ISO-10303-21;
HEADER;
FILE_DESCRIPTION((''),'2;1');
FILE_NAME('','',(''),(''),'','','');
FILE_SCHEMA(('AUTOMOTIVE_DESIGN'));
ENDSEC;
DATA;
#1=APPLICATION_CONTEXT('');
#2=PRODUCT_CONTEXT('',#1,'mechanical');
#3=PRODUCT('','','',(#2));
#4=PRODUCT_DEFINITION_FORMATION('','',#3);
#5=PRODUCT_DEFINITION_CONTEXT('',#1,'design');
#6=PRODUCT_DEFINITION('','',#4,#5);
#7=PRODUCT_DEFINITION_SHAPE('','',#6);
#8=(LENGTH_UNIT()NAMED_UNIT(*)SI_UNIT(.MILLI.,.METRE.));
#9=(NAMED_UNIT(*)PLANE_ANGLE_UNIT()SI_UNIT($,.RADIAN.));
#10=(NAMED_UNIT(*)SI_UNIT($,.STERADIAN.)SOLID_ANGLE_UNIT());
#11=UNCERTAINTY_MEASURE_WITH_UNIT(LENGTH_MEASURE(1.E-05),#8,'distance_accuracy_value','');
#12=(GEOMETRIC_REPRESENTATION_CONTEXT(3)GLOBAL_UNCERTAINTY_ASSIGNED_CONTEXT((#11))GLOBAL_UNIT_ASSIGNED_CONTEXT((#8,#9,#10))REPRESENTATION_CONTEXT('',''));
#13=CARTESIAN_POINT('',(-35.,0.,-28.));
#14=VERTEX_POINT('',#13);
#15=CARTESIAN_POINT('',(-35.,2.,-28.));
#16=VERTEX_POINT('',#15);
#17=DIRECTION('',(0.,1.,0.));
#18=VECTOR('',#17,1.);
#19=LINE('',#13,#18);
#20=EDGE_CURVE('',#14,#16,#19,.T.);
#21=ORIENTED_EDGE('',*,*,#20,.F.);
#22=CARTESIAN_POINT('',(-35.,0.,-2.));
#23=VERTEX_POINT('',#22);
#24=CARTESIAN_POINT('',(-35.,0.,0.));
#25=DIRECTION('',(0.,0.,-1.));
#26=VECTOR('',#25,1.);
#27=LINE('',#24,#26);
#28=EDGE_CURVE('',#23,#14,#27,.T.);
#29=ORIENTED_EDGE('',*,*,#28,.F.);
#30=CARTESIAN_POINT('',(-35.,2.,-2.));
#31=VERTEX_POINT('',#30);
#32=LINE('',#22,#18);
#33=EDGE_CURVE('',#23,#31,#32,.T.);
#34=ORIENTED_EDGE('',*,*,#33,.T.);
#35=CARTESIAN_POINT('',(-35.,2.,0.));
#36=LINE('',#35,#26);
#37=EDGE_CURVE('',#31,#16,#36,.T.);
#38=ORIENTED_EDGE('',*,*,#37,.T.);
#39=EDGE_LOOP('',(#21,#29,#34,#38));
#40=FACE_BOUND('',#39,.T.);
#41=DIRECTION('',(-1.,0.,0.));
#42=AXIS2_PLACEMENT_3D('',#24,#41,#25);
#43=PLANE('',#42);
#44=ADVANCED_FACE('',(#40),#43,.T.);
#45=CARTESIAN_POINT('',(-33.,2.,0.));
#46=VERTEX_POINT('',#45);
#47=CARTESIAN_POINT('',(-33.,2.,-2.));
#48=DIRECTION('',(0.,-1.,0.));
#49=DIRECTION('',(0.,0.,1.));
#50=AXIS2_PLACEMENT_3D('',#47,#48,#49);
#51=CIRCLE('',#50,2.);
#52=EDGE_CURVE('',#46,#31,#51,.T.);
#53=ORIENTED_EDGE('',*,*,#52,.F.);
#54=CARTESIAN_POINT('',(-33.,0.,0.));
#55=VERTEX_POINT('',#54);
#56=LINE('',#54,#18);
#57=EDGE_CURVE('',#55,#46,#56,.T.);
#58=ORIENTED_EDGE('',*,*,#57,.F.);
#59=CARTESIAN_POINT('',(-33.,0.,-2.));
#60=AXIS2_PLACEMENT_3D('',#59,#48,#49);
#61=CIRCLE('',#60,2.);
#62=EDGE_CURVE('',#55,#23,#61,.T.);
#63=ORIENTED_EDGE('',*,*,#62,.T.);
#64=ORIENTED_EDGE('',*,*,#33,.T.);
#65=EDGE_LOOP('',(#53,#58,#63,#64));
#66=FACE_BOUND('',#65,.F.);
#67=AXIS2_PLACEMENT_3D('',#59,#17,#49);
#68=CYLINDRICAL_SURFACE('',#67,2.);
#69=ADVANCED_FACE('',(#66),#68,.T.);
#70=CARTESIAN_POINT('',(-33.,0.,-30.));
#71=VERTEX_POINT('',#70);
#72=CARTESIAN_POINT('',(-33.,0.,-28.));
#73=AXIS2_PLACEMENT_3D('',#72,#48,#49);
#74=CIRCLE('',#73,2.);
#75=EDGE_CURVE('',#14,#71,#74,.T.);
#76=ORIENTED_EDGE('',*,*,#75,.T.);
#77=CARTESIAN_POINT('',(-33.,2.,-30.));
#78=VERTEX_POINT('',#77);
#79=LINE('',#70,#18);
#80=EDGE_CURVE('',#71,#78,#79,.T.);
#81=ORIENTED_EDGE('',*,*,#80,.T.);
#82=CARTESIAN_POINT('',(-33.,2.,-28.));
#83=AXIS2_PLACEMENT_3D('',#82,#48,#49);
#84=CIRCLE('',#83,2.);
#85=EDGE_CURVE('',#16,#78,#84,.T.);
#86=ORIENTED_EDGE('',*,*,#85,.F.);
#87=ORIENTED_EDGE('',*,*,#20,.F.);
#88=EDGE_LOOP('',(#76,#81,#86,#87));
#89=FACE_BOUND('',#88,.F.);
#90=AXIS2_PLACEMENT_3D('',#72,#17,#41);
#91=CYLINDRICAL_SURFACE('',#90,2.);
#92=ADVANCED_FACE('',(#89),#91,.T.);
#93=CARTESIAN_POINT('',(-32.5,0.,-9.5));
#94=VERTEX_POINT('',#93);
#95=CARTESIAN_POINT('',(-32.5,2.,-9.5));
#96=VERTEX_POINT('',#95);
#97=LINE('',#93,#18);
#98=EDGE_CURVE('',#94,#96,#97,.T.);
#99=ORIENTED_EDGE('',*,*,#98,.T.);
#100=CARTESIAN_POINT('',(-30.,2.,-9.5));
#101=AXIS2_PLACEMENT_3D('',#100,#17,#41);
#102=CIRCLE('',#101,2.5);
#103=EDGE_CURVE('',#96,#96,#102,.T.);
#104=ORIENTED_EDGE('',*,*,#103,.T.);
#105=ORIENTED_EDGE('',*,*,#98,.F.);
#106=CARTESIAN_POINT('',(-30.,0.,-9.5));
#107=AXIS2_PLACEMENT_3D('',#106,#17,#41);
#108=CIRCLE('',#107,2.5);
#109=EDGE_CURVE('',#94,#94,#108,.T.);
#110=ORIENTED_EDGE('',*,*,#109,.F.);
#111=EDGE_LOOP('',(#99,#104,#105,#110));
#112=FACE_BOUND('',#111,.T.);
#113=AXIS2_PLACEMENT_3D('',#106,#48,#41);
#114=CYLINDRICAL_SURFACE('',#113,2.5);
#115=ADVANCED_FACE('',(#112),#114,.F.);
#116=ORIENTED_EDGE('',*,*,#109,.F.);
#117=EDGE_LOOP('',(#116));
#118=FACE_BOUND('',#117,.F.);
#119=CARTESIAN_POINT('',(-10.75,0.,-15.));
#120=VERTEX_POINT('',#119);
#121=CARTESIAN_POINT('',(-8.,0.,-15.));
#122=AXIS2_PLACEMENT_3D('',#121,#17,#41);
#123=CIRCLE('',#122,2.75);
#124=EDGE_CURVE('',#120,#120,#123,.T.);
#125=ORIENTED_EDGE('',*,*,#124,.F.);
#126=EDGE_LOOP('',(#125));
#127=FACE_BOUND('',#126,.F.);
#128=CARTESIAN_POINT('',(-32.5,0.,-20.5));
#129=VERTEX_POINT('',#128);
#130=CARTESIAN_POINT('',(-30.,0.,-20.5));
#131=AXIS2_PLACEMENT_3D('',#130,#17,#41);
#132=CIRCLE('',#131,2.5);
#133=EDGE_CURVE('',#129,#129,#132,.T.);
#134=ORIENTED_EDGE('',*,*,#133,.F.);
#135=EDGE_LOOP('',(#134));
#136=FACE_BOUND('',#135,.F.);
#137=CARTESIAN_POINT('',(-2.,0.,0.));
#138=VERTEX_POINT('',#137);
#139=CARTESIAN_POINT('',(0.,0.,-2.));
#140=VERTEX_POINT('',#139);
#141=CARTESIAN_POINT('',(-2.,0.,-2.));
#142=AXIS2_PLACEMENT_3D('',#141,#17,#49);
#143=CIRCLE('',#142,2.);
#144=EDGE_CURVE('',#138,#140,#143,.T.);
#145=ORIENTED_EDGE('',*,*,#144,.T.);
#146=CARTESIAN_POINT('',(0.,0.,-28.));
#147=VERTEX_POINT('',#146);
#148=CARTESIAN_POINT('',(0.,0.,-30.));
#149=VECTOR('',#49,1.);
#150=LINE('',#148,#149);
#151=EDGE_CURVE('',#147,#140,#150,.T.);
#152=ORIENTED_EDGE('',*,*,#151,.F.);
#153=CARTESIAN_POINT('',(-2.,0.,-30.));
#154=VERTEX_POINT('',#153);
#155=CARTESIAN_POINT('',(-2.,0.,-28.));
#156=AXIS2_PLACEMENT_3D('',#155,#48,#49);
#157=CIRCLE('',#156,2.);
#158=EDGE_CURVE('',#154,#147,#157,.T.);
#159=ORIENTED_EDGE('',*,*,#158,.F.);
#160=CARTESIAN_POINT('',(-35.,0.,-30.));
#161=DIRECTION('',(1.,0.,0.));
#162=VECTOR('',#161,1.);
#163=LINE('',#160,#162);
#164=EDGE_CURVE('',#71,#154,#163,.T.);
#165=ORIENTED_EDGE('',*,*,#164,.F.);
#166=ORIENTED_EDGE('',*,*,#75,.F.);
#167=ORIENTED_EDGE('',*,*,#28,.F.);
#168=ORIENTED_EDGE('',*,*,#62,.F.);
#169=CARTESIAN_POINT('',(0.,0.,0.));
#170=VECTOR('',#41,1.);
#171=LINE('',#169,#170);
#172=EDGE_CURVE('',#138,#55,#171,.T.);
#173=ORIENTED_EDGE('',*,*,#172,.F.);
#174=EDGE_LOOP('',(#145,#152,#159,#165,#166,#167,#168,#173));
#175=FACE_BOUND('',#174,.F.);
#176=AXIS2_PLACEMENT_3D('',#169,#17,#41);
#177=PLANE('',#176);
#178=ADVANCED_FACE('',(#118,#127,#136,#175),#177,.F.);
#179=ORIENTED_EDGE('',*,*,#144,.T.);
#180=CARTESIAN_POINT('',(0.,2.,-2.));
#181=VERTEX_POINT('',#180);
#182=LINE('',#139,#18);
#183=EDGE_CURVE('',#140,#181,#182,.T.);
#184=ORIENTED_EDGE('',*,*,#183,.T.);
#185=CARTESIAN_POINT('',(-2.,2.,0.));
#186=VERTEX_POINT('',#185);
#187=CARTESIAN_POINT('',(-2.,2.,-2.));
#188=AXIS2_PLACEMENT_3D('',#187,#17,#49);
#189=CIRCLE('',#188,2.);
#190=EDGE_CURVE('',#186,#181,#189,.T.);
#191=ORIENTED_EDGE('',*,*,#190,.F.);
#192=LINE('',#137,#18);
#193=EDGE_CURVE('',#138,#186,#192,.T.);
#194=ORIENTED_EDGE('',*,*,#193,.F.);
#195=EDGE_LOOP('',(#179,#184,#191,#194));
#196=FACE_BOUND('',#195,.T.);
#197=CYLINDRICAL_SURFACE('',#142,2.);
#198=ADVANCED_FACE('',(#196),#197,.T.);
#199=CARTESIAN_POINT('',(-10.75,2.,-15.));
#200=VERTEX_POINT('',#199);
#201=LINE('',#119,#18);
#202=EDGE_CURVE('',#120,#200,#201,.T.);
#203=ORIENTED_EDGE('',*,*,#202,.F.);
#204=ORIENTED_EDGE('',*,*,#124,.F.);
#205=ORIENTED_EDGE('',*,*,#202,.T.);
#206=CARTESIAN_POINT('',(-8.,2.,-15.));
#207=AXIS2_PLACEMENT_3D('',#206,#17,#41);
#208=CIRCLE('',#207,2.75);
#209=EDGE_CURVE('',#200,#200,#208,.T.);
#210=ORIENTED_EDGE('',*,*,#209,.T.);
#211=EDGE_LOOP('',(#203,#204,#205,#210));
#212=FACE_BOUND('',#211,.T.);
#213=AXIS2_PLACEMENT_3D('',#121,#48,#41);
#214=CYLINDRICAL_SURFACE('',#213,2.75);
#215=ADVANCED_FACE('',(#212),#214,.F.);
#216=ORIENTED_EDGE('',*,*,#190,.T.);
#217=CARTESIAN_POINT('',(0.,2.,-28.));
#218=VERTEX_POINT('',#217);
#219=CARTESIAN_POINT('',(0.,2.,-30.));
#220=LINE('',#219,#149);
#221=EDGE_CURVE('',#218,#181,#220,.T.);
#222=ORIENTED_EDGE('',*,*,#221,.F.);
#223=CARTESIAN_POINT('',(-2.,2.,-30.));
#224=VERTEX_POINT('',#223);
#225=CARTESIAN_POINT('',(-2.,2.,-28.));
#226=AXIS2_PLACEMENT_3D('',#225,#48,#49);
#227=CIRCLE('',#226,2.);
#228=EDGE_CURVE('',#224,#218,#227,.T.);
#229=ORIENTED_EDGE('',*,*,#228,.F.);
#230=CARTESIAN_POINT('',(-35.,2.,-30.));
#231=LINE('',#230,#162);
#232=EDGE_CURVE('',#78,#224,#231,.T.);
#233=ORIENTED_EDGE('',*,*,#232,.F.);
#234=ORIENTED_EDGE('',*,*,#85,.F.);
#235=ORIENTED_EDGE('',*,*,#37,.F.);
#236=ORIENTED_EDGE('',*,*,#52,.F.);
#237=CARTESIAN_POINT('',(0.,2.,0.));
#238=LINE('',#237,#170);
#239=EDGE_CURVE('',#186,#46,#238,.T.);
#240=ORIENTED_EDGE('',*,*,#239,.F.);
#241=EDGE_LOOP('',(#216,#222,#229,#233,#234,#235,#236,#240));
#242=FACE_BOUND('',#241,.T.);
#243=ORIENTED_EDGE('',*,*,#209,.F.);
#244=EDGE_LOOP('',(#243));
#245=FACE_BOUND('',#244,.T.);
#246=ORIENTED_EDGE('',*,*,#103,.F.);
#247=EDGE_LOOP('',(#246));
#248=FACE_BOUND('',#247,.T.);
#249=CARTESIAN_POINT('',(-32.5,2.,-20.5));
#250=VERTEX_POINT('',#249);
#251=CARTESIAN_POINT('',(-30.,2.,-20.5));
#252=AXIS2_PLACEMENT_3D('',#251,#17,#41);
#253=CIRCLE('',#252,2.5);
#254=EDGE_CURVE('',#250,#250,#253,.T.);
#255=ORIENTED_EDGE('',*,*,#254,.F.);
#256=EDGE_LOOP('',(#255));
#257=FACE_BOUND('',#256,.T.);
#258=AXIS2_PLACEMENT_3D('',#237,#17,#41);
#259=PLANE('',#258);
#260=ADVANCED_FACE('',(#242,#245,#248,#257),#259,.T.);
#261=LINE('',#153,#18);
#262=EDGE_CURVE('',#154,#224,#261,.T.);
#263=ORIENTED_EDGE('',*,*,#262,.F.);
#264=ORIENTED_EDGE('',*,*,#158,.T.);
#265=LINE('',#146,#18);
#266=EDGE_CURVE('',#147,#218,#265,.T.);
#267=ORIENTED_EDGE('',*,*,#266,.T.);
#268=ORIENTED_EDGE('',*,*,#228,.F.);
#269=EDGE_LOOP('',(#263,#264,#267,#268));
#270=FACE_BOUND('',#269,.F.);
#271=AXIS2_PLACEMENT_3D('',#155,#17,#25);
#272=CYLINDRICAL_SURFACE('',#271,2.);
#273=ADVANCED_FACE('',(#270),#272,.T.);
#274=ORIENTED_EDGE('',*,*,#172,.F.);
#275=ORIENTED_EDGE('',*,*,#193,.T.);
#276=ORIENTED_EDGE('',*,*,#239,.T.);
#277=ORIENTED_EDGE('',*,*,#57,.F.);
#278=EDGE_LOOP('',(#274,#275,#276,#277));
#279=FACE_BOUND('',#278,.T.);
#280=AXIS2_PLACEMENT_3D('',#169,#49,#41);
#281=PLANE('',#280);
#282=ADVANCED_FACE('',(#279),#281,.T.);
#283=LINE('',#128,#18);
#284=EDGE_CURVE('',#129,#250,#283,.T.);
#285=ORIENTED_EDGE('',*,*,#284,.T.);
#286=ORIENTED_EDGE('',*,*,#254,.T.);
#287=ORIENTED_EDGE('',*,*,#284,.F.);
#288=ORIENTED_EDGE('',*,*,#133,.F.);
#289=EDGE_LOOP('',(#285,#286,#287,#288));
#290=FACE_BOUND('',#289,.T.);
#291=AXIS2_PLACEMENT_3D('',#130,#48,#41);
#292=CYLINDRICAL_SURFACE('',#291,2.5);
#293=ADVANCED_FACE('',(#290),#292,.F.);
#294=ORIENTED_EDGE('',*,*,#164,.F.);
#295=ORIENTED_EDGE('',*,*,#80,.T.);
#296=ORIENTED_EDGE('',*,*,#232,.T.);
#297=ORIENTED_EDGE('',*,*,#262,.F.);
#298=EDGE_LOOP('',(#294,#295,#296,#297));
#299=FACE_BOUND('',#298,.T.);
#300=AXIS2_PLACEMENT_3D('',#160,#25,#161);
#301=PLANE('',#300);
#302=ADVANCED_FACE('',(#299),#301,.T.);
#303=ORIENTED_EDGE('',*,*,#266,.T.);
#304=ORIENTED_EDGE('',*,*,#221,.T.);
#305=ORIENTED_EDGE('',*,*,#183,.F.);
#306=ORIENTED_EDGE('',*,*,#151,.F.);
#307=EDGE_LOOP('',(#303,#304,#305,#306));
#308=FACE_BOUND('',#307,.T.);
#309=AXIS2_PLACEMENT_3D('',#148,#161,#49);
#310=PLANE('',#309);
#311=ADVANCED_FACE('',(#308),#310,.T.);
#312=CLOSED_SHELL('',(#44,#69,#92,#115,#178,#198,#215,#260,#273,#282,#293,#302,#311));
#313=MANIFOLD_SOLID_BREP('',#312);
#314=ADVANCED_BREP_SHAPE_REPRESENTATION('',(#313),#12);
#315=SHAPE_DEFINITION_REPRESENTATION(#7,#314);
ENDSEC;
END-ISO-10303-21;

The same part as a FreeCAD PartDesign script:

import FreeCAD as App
import Part
import Sketcher

V = App.Vector
Q = App.Units.Quantity


def edges_at(feature, points):
    """Names of the edges that pass closest to the given points."""
    edges = feature.Shape.Edges
    near = lambda p: min(range(len(edges)), key=lambda i: edges[i].distToShape(Part.Vertex(*p))[0])
    return sorted({f"Edge{near(p) + 1}" for p in points})

doc = App.newDocument("Part")
body = doc.addObject("PartDesign::Body", "Body")

sketch1 = body.newObject("Sketcher::SketchObject", "Sketch")
sketch1.AttachmentSupport = (doc.getObject("XZ_Plane"), [""])
sketch1.MapMode = "FlatFace"
sketch1.addGeometry([
    Part.LineSegment(V(-35, 0, 0), V(0, 0, 0)),
    Part.LineSegment(V(0, 0, 0), V(0, -30, 0)),
    Part.LineSegment(V(0, -30, 0), V(-35, -30, 0)),
    Part.LineSegment(V(-35, -30, 0), V(-35, 0, 0)),
    Part.Circle(V(-30, -20.5, 0), V(0, 0, 1), 2.5),
    Part.Circle(V(-8, -15, 0), V(0, 0, 1), 2.75),
    Part.Circle(V(-30, -9.5, 0), V(0, 0, 1), 2.5),
], False)
sketch1.addConstraint([
    Sketcher.Constraint("Coincident", 0, 2, 1, 1),
    Sketcher.Constraint("Coincident", 1, 2, 2, 1),
    Sketcher.Constraint("Coincident", 2, 2, 3, 1),
    Sketcher.Constraint("Coincident", 3, 2, 0, 1),
    Sketcher.Constraint("Horizontal", 0),
    Sketcher.Constraint("Vertical", 1),
    Sketcher.Constraint("Horizontal", 2),
    Sketcher.Constraint("Vertical", 3),
    Sketcher.Constraint("Coincident", 0, 2, -1, 1),
    Sketcher.Constraint("Equal", 4, 6),
    Sketcher.Constraint("Vertical", 4, 3, 6, 3),
    Sketcher.Constraint("Diameter", 4, Q("5 mm")),
    Sketcher.Constraint("Diameter", 5, Q("5.5 mm")),
    Sketcher.Constraint("DistanceX", 0, 1, 0, 2, Q("35 mm")),
    Sketcher.Constraint("DistanceY", 1, 2, 1, 1, Q("30 mm")),
    Sketcher.Constraint("DistanceX", 4, 3, -1, 1, Q("30 mm")),
    Sketcher.Constraint("DistanceX", 5, 3, -1, 1, Q("8 mm")),
    Sketcher.Constraint("DistanceY", 4, 3, 6, 3, Q("11 mm")),
    Sketcher.Constraint("DistanceY", 4, 3, 5, 3, Q("5.5 mm")),
    Sketcher.Constraint("DistanceY", 5, 3, -1, 1, Q("15 mm")),
])
pad1 = body.newObject("PartDesign::Pad", "Pad")
pad1.Profile = sketch1
pad1.Length = 2
pad1.Reversed = True
doc.recompute()

fillet = body.newObject("PartDesign::Fillet", "Fillet")
fillet.Base = (pad1, edges_at(pad1, [
    (0, 1, -30),
    (0, 1, 0),
    (-35, 1, 0),
    (-35, 1, -30),
]))
fillet.Radius = 2

doc.recompute()
